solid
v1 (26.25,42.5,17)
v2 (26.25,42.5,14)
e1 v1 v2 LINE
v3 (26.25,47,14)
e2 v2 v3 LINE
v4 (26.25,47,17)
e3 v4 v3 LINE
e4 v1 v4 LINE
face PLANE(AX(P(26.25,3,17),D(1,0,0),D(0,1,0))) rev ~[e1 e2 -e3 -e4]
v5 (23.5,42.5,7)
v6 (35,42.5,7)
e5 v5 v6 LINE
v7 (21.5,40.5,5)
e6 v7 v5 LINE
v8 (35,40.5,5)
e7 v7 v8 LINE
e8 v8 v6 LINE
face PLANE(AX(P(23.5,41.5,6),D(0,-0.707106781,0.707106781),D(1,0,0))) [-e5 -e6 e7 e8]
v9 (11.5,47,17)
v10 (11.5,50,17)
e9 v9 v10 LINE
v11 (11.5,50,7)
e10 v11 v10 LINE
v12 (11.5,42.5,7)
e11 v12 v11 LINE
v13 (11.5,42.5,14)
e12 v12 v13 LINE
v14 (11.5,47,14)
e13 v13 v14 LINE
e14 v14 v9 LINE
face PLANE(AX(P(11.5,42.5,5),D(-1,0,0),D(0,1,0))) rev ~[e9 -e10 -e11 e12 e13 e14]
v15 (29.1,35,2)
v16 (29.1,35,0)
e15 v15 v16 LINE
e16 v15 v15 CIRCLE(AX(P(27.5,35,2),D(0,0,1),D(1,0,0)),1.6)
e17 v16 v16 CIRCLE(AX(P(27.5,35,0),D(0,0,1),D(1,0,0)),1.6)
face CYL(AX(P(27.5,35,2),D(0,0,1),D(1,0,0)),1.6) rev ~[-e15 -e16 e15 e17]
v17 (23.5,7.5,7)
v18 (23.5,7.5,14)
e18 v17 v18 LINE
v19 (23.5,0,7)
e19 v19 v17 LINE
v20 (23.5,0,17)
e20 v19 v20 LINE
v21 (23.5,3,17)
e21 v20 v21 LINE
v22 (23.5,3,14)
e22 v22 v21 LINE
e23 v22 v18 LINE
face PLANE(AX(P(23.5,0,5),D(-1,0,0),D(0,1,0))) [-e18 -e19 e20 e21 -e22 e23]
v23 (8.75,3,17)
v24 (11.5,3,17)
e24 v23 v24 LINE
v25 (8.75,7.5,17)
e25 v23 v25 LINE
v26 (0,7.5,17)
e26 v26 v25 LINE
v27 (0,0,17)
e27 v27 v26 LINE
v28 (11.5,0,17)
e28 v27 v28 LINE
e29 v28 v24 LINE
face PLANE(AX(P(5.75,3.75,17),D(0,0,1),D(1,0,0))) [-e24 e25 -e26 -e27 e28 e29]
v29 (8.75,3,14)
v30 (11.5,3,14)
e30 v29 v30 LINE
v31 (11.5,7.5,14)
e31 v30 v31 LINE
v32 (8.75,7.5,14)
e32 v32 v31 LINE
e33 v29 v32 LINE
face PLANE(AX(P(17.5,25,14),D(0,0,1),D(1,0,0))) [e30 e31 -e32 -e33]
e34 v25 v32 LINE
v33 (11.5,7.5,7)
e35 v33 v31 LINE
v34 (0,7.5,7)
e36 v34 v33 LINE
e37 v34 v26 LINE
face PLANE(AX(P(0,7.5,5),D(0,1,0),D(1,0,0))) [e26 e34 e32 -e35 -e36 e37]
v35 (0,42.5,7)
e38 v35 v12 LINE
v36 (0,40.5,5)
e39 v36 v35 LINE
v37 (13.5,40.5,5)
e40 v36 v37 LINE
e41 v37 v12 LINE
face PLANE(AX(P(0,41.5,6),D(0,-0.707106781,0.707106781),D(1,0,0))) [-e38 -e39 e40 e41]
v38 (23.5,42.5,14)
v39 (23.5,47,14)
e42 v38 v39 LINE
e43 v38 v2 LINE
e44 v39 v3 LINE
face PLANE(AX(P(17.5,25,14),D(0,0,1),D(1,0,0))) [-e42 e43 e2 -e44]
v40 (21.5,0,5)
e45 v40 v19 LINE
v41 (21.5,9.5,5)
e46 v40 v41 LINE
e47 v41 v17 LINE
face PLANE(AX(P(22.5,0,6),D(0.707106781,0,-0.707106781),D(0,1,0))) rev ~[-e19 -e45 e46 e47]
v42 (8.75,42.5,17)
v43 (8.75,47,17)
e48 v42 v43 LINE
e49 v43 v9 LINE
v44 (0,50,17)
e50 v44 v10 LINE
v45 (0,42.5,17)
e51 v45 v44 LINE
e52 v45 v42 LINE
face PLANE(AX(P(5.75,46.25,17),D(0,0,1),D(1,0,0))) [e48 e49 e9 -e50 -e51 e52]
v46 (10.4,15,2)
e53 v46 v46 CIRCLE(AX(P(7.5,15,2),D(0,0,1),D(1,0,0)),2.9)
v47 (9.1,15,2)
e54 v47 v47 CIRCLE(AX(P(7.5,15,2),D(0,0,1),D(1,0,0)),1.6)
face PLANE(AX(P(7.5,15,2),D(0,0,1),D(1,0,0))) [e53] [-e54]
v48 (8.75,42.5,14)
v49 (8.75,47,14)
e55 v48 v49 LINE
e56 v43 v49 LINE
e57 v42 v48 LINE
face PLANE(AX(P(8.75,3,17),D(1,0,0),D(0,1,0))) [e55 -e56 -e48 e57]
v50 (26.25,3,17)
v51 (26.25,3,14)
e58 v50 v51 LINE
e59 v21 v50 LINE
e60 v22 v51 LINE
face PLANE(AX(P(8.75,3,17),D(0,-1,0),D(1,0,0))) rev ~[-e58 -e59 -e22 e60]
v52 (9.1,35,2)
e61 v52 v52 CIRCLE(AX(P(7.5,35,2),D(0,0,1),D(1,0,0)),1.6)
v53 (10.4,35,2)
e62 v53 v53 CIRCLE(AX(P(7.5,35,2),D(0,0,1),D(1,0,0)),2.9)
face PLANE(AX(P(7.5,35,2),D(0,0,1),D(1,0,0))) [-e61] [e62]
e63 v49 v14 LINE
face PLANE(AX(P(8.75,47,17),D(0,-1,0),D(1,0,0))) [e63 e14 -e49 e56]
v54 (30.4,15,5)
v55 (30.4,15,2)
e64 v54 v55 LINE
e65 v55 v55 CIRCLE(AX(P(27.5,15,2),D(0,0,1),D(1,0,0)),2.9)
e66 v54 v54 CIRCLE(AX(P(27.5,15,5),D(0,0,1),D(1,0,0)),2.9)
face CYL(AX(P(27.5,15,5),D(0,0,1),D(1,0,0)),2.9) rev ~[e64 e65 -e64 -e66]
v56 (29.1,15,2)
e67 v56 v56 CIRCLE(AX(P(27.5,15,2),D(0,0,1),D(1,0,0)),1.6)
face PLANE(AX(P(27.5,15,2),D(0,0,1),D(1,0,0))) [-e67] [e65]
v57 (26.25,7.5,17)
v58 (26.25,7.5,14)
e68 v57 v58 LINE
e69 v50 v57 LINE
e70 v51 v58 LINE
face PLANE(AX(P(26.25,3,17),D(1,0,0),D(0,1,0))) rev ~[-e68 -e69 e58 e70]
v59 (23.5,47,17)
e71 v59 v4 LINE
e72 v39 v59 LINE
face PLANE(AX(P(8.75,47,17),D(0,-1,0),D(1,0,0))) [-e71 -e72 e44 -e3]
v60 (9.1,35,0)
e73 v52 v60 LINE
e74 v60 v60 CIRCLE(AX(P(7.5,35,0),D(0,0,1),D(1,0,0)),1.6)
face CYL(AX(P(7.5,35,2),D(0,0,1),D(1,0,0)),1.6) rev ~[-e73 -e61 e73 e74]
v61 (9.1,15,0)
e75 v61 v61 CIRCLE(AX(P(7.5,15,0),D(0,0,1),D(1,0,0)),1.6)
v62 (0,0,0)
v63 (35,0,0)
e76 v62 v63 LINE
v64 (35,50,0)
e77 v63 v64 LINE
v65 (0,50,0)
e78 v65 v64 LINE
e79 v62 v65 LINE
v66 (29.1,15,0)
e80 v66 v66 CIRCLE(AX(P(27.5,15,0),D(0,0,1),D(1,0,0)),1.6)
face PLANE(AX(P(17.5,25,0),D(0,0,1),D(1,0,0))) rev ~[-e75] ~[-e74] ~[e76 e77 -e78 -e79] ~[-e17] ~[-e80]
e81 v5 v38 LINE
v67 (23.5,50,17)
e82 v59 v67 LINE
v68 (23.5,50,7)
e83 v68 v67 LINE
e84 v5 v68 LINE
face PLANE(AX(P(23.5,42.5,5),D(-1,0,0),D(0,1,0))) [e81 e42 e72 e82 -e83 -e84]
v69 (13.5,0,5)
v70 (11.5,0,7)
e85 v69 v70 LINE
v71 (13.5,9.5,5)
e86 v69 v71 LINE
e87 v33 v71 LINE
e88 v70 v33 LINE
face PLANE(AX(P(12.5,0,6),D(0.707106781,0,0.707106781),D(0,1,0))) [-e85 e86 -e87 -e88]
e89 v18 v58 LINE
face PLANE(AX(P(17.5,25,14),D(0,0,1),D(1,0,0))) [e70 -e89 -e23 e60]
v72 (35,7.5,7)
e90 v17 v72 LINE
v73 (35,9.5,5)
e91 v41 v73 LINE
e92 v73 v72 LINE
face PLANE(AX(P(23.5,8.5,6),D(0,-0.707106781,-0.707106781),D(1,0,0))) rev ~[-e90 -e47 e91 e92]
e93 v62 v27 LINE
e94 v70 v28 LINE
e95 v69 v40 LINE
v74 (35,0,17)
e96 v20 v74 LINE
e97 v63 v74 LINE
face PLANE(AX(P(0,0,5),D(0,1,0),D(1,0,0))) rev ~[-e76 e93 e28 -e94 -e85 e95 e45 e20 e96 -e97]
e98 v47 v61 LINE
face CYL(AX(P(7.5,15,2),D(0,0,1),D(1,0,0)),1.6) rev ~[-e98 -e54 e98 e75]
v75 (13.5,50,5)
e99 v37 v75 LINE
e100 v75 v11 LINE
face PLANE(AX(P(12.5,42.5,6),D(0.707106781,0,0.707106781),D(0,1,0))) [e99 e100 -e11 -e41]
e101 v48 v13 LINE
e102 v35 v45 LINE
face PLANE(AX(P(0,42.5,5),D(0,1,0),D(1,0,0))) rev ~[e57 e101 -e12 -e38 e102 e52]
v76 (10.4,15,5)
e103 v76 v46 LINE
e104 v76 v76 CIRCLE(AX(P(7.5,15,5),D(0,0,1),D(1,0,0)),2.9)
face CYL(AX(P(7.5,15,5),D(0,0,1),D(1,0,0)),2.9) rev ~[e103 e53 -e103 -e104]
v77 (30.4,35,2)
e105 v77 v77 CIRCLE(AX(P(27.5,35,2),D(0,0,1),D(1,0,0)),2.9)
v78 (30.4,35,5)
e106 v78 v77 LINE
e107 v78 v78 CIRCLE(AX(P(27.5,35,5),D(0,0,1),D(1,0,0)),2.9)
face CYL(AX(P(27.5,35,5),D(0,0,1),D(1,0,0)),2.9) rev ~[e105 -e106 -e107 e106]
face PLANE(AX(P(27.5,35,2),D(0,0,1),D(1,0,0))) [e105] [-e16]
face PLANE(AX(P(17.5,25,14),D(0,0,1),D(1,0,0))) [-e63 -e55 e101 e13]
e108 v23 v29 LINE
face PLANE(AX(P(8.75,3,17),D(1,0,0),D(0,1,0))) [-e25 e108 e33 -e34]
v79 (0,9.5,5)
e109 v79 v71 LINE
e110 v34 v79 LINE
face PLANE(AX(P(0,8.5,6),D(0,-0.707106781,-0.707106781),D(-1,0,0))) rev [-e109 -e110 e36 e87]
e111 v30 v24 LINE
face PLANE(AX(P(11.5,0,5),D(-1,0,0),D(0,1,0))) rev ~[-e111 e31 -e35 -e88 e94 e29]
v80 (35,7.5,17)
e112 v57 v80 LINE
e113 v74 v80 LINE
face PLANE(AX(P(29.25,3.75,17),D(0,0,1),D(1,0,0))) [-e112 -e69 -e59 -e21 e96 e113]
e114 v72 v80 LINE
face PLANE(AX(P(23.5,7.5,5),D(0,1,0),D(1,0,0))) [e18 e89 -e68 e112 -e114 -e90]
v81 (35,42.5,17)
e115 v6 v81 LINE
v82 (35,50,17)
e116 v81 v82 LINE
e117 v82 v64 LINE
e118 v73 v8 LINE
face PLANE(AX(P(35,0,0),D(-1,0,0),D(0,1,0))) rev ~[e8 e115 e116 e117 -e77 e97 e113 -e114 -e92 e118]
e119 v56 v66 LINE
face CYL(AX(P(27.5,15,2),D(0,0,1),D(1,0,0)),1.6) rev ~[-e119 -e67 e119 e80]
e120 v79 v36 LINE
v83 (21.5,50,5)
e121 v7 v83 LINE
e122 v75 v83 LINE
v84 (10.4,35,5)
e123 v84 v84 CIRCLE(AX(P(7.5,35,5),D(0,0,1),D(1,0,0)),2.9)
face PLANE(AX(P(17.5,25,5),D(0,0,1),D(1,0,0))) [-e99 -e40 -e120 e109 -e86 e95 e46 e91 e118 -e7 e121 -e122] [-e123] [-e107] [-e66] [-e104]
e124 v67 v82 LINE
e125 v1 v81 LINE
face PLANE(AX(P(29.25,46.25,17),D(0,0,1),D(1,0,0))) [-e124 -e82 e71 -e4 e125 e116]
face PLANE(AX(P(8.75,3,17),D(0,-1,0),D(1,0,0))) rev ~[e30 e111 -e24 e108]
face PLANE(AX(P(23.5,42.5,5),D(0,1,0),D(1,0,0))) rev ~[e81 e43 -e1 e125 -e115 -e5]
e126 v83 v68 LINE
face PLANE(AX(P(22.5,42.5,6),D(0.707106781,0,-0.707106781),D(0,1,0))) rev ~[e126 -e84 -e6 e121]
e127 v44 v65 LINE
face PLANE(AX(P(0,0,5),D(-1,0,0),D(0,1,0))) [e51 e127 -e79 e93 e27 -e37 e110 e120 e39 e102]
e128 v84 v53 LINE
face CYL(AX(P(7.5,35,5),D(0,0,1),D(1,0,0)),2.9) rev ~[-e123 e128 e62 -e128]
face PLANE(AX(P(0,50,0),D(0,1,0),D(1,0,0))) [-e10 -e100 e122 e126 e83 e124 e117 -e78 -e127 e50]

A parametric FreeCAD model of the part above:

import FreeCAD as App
import Part
import Sketcher

V = App.Vector


def edges_at(feature, points):
    """Names of the edges that pass closest to the given points."""
    edges = feature.Shape.Edges
    near = lambda p: min(range(len(edges)), key=lambda i: edges[i].distToShape(Part.Vertex(*p))[0])
    return sorted({f"Edge{near(p) + 1}" for p in points})

doc = App.newDocument("Part")
body = doc.addObject("PartDesign::Body", "Body")

sketch1 = doc.addObject("Sketcher::SketchObject", "Sketch")
body.addObject(sketch1)
sketch1.AttachmentSupport = (doc.XY_Plane, [""])
sketch1.MapMode = "FlatFace"
sketch1.addGeometry([
    Part.LineSegment(V(0, 50, 0), V(0, 0, 0)),
    Part.LineSegment(V(0, 0, 0), V(35, 0, 0)),
    Part.LineSegment(V(35, 0, 0), V(35, 50, 0)),
    Part.LineSegment(V(35, 50, 0), V(0, 50, 0)),
], False)
sketch1.addConstraint([
    Sketcher.Constraint("Coincident", 0, 2, 1, 1),
    Sketcher.Constraint("Coincident", 1, 2, 2, 1),
    Sketcher.Constraint("Coincident", 2, 2, 3, 1),
    Sketcher.Constraint("Coincident", 3, 2, 0, 1),
    Sketcher.Constraint("Vertical", 0),
    Sketcher.Constraint("Horizontal", 1),
    Sketcher.Constraint("Vertical", 2),
    Sketcher.Constraint("Horizontal", 3),
    Sketcher.Constraint("Coincident", 0, 2, -1, 1),
    Sketcher.Constraint("DistanceX", 1, 1, 1, 2, 35.0),
    Sketcher.Constraint("DistanceY", 0, 2, 0, 1, 50.0),
])
pad1 = doc.addObject("PartDesign::Pad", "Pad")
body.addObject(pad1)
pad1.Profile = sketch1
pad1.Length = 5

sketch2 = doc.addObject("Sketcher::SketchObject", "Sketch001")
body.addObject(sketch2)
sketch2.AttachmentSupport = (doc.XY_Plane, [""])
sketch2.MapMode = "FlatFace"
sketch2.AttachmentOffset = App.Placement(V(0, 0, 5), App.Rotation())
sketch2.addGeometry([
    Part.Circle(V(7.5, 15, 0), V(0, 0, 1), 2.9),
    Part.Circle(V(7.5, 35, 0), V(0, 0, 1), 2.9),
    Part.Circle(V(27.5, 15, 0), V(0, 0, 1), 2.9),
    Part.Circle(V(27.5, 35, 0), V(0, 0, 1), 2.9),
], False)
sketch2.addConstraint([
    Sketcher.Constraint("Equal", 0, 1),
    Sketcher.Constraint("Equal", 1, 2),
    Sketcher.Constraint("Equal", 2, 3),
    Sketcher.Constraint("Horizontal", 0, 3, 2, 3),
    Sketcher.Constraint("Horizontal", 1, 3, 3, 3),
    Sketcher.Constraint("Vertical", 0, 3, 1, 3),
    Sketcher.Constraint("Vertical", 2, 3, 3, 3),
    Sketcher.Constraint("Diameter", 0, 5.8),
    Sketcher.Constraint("DistanceY", -1, 1, 0, 3, 15.0),
    Sketcher.Constraint("DistanceY", -1, 1, 1, 3, 35.0),
    Sketcher.Constraint("DistanceX", 0, 3, 2, 3, 20.0),
    Sketcher.Constraint("DistanceX", -1, 1, 0, 3, 7.5),
])
pocket1 = doc.addObject("PartDesign::Pocket", "Pocket")
body.addObject(pocket1)
pocket1.Profile = sketch2
pocket1.Length = 3

sketch3 = doc.addObject("Sketcher::SketchObject", "Sketch002")
body.addObject(sketch3)
sketch3.AttachmentSupport = (doc.XY_Plane, [""])
sketch3.MapMode = "FlatFace"
sketch3.AttachmentOffset = App.Placement(V(0, 0, 2), App.Rotation())
sketch3.addGeometry([
    Part.Circle(V(7.5, 15, 0), V(0, 0, 1), 1.6),
    Part.Circle(V(7.5, 35, 0), V(0, 0, 1), 1.6),
    Part.Circle(V(27.5, 15, 0), V(0, 0, 1), 1.6),
    Part.Circle(V(27.5, 35, 0), V(0, 0, 1), 1.6),
], False)
sketch3.addConstraint([
    Sketcher.Constraint("Equal", 0, 1),
    Sketcher.Constraint("Equal", 1, 2),
    Sketcher.Constraint("Equal", 2, 3),
    Sketcher.Constraint("Horizontal", 0, 3, 2, 3),
    Sketcher.Constraint("Horizontal", 1, 3, 3, 3),
    Sketcher.Constraint("Vertical", 0, 3, 1, 3),
    Sketcher.Constraint("Vertical", 2, 3, 3, 3),
    Sketcher.Constraint("Diameter", 0, 3.2),
    Sketcher.Constraint("DistanceY", -1, 1, 0, 3, 15.0),
    Sketcher.Constraint("DistanceY", -1, 1, 1, 3, 35.0),
    Sketcher.Constraint("DistanceX", 0, 3, 2, 3, 20.0),
    Sketcher.Constraint("DistanceX", -1, 1, 0, 3, 7.5),
])
pocket2 = doc.addObject("PartDesign::Pocket", "Pocket001")
body.addObject(pocket2)
pocket2.Profile = sketch3
pocket2.Length = 5

sketch4 = doc.addObject("Sketcher::SketchObject", "Sketch003")
body.addObject(sketch4)
sketch4.AttachmentSupport = (doc.XY_Plane, [""])
sketch4.MapMode = "FlatFace"
sketch4.AttachmentOffset = App.Placement(V(0, 0, 5), App.Rotation())
sketch4.addGeometry([
    Part.LineSegment(V(0, 8, 0), V(0, 0, 0)),
    Part.LineSegment(V(0, 0, 0), V(12, 0, 0)),
    Part.LineSegment(V(12, 0, 0), V(12, 8, 0)),
    Part.LineSegment(V(12, 8, 0), V(0, 8, 0)),
    Part.LineSegment(V(0, 50, 0), V(0, 42, 0)),
    Part.LineSegment(V(0, 42, 0), V(12, 42, 0)),
    Part.LineSegment(V(12, 42, 0), V(12, 50, 0)),
    Part.LineSegment(V(12, 50, 0), V(0, 50, 0)),
    Part.LineSegment(V(24, 8, 0), V(24, 0, 0)),
    Part.LineSegment(V(24, 0, 0), V(35, 0, 0)),
    Part.LineSegment(V(35, 0, 0), V(35, 8, 0)),
    Part.LineSegment(V(35, 8, 0), V(24, 8, 0)),
    Part.LineSegment(V(24, 50, 0), V(24, 42, 0)),
    Part.LineSegment(V(24, 42, 0), V(35, 42, 0)),
    Part.LineSegment(V(35, 42, 0), V(35, 50, 0)),
    Part.LineSegment(V(35, 50, 0), V(24, 50, 0)),
], False)
sketch4.addConstraint([
    Sketcher.Constraint("Coincident", 0, 2, 1, 1),
    Sketcher.Constraint("Coincident", 1, 2, 2, 1),
    Sketcher.Constraint("Coincident", 2, 2, 3, 1),
    Sketcher.Constraint("Coincident", 3, 2, 0, 1),
    Sketcher.Constraint("Coincident", 4, 2, 5, 1),
    Sketcher.Constraint("Coincident", 5, 2, 6, 1),
    Sketcher.Constraint("Coincident", 6, 2, 7, 1),
    Sketcher.Constraint("Coincident", 7, 2, 4, 1),
    Sketcher.Constraint("Coincident", 8, 2, 9, 1),
    Sketcher.Constraint("Coincident", 9, 2, 10, 1),
    Sketcher.Constraint("Coincident", 10, 2, 11, 1),
    Sketcher.Constraint("Coincident", 11, 2, 8, 1),
    Sketcher.Constraint("Coincident", 12, 2, 13, 1),
    Sketcher.Constraint("Coincident", 13, 2, 14, 1),
    Sketcher.Constraint("Coincident", 14, 2, 15, 1),
    Sketcher.Constraint("Coincident", 15, 2, 12, 1),
    Sketcher.Constraint("Vertical", 0),
    Sketcher.Constraint("Horizontal", 1),
    Sketcher.Constraint("Vertical", 2),
    Sketcher.Constraint("Horizontal", 3),
    Sketcher.Constraint("Vertical", 4),
    Sketcher.Constraint("Horizontal", 5),
    Sketcher.Constraint("Vertical", 6),
    Sketcher.Constraint("Horizontal", 7),
    Sketcher.Constraint("Vertical", 8),
    Sketcher.Constraint("Horizontal", 9),
    Sketcher.Constraint("Vertical", 10),
    Sketcher.Constraint("Horizontal", 11),
    Sketcher.Constraint("Vertical", 12),
    Sketcher.Constraint("Horizontal", 13),
    Sketcher.Constraint("Vertical", 14),
    Sketcher.Constraint("Horizontal", 15),
    Sketcher.Constraint("Coincident", 0, 2, -1, 1),
    Sketcher.Constraint("PointOnObject", 4, 2, -2),
    Sketcher.Constraint("PointOnObject", 8, 2, -1),
    Sketcher.Constraint("Horizontal", 3, 2, 10, 2),
    Sketcher.Constraint("Horizontal", 5, 2, 12, 2),
    Sketcher.Constraint("Horizontal", 7, 2, 14, 2),
    Sketcher.Constraint("Vertical", 2, 2, 5, 2),
    Sketcher.Constraint("Vertical", 11, 2, 12, 2),
    Sketcher.Constraint("Vertical", 10, 2, 13, 2),
    Sketcher.Constraint("Equal", 7, 9),
    Sketcher.Constraint("Equal", 2, 4),
    Sketcher.Constraint("DistanceX", 1, 1, 1, 2, 11.5),
    Sketcher.Constraint("DistanceY", 0, 2, 0, 1, 7.5),
    Sketcher.Constraint("DistanceY", -1, 1, 6, 2, 50.0),
    Sketcher.Constraint("DistanceX", -1, 1, 9, 2, 35.0),
])
pad2 = doc.addObject("PartDesign::Pad", "Pad001")
body.addObject(pad2)
pad2.Profile = sketch4
pad2.Length = 12

sketch5 = doc.addObject("Sketcher::SketchObject", "Sketch004")
body.addObject(sketch5)
sketch5.AttachmentSupport = (doc.XY_Plane, [""])
sketch5.MapMode = "FlatFace"
sketch5.AttachmentOffset = App.Placement(V(0, 0, 17), App.Rotation())
sketch5.addGeometry([
    Part.LineSegment(V(9, 47, 0), V(9, 3, 0)),
    Part.LineSegment(V(9, 3, 0), V(26, 3, 0)),
    Part.LineSegment(V(26, 3, 0), V(26, 47, 0)),
    Part.LineSegment(V(26, 47, 0), V(9, 47, 0)),
], False)
sketch5.addConstraint([
    Sketcher.Constraint("Coincident", 0, 2, 1, 1),
    Sketcher.Constraint("Coincident", 1, 2, 2, 1),
    Sketcher.Constraint("Coincident", 2, 2, 3, 1),
    Sketcher.Constraint("Coincident", 3, 2, 0, 1),
    Sketcher.Constraint("Vertical", 0),
    Sketcher.Constraint("Horizontal", 1),
    Sketcher.Constraint("Vertical", 2),
    Sketcher.Constraint("Horizontal", 3),
    Sketcher.Constraint("DistanceY", 0, 2, 0, 1, 44.0),
    Sketcher.Constraint("DistanceX", 1, 1, 1, 2, 17.5),
    Sketcher.Constraint("DistanceY", -1, 1, 0, 2, 3.0),
    Sketcher.Constraint("DistanceX", -1, 1, 0, 2, 8.75),
])
pocket3 = doc.addObject("PartDesign::Pocket", "Pocket002")
body.addObject(pocket3)
pocket3.Profile = sketch5
pocket3.Length = 3
doc.recompute()

chamfer = doc.addObject("PartDesign::Chamfer", "Chamfer")
body.addObject(chamfer)
chamfer.Base = (pocket3, edges_at(pocket3, [
    (5.75, 7.5, 5),
    (11.5, 3.75, 5),
    (29.25, 7.5, 5),
    (23.5, 3.75, 5),
    (5.75, 42.5, 5),
    (11.5, 46.25, 5),
    (29.25, 42.5, 5),
    (23.5, 46.25, 5),
]))
chamfer.Size = 2

doc.recompute()
